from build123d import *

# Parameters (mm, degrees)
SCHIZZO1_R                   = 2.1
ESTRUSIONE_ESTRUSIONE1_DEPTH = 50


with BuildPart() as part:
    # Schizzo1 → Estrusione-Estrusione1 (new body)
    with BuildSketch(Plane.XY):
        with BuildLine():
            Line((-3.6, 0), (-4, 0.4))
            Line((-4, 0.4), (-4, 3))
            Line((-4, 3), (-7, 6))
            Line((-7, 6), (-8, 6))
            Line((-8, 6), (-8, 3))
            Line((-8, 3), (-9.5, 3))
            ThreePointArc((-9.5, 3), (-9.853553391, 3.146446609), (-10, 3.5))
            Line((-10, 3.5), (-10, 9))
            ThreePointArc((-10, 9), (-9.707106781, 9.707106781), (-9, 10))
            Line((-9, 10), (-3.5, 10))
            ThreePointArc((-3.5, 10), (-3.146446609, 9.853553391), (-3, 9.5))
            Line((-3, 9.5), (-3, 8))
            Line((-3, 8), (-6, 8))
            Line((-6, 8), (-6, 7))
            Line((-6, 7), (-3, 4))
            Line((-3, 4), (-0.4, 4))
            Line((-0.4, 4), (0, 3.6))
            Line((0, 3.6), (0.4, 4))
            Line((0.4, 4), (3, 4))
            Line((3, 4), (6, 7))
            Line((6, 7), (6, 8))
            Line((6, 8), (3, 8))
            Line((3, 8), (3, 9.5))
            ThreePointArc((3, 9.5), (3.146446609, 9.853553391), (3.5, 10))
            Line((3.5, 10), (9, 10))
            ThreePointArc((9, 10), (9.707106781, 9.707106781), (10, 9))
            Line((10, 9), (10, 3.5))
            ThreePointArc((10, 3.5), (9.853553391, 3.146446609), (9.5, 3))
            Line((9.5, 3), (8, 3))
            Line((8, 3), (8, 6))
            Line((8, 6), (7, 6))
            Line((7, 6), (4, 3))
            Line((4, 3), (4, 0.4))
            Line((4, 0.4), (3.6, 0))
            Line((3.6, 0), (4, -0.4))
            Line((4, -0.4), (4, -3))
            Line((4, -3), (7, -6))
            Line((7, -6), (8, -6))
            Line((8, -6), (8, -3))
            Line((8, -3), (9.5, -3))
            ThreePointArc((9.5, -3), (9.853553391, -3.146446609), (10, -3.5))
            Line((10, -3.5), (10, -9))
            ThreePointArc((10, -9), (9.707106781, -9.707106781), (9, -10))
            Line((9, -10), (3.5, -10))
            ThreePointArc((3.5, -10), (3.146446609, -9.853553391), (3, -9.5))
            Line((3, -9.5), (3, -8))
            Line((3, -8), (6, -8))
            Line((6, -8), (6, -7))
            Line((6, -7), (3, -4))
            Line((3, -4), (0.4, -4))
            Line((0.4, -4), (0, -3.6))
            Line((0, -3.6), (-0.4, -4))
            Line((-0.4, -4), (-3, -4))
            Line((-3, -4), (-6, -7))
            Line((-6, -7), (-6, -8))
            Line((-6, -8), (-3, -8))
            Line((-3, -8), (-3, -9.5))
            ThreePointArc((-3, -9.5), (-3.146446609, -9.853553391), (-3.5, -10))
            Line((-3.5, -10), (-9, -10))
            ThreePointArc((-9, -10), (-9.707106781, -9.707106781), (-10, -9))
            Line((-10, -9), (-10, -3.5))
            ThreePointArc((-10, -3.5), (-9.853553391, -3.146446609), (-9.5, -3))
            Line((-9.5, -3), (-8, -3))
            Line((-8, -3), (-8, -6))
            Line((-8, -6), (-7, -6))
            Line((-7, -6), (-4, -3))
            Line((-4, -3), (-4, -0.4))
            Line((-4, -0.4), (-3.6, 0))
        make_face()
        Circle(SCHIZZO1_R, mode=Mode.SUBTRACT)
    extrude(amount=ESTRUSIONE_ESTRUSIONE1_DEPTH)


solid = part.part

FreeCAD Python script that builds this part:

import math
import FreeCAD as App
import Part
import Sketcher

doc = App.newDocument("Part")
body = doc.addObject("PartDesign::Body", "Body")

sketch1 = doc.addObject("Sketcher::SketchObject", "Sketch")
body.addObject(sketch1)
sketch1.AttachmentSupport = (doc.XY_Plane, [""])
sketch1.MapMode = "FlatFace"
sketch1.addGeometry([
    Part.LineSegment(App.Vector(-4, 0.4, 0), App.Vector(-3.6, 0, 0)),
    Part.LineSegment(App.Vector(-3.6, 0, 0), App.Vector(-4, -0.4, 0)),
    Part.LineSegment(App.Vector(-4, -0.4, 0), App.Vector(-4, -3, 0)),
    Part.LineSegment(App.Vector(-4, -3, 0), App.Vector(-7, -6, 0)),
    Part.LineSegment(App.Vector(-7, -6, 0), App.Vector(-8, -6, 0)),
    Part.LineSegment(App.Vector(-8, -6, 0), App.Vector(-8, -3, 0)),
    Part.LineSegment(App.Vector(-8, -3, 0), App.Vector(-9.5, -3, 0)),
    Part.ArcOfCircle(Part.Circle(App.Vector(-9.5, -3.5, 0), App.Vector(0, 0, 1), 0.5), math.radians(90), math.radians(180)),
    Part.LineSegment(App.Vector(-10, -3.5, 0), App.Vector(-10, -9, 0)),
    Part.ArcOfCircle(Part.Circle(App.Vector(-9, -9, 0), App.Vector(0, 0, 1), 1), math.radians(-180), math.radians(-90)),
    Part.LineSegment(App.Vector(-9, -10, 0), App.Vector(-3.5, -10, 0)),
    Part.ArcOfCircle(Part.Circle(App.Vector(-3.5, -9.5, 0), App.Vector(0, 0, 1), 0.5), math.radians(-90), math.radians(0)),
    Part.LineSegment(App.Vector(-3, -9.5, 0), App.Vector(-3, -8, 0)),
    Part.LineSegment(App.Vector(-3, -8, 0), App.Vector(-6, -8, 0)),
    Part.LineSegment(App.Vector(-6, -8, 0), App.Vector(-6, -7, 0)),
    Part.LineSegment(App.Vector(-6, -7, 0), App.Vector(-3, -4, 0)),
    Part.LineSegment(App.Vector(-3, -4, 0), App.Vector(-0.4, -4, 0)),
    Part.LineSegment(App.Vector(-0.4, -4, 0), App.Vector(0, -3.6, 0)),
    Part.LineSegment(App.Vector(0, -3.6, 0), App.Vector(0.4, -4, 0)),
    Part.LineSegment(App.Vector(0.4, -4, 0), App.Vector(3, -4, 0)),
    Part.LineSegment(App.Vector(3, -4, 0), App.Vector(6, -7, 0)),
    Part.LineSegment(App.Vector(6, -7, 0), App.Vector(6, -8, 0)),
    Part.LineSegment(App.Vector(6, -8, 0), App.Vector(3, -8, 0)),
    Part.LineSegment(App.Vector(3, -8, 0), App.Vector(3, -9.5, 0)),
    Part.ArcOfCircle(Part.Circle(App.Vector(3.5, -9.5, 0), App.Vector(0, 0, 1), 0.5), math.radians(180), math.radians(270)),
    Part.LineSegment(App.Vector(3.5, -10, 0), App.Vector(9, -10, 0)),
    Part.ArcOfCircle(Part.Circle(App.Vector(9, -9, 0), App.Vector(0, 0, 1), 1), math.radians(-90), math.radians(0)),
    Part.LineSegment(App.Vector(10, -9, 0), App.Vector(10, -3.5, 0)),
    Part.ArcOfCircle(Part.Circle(App.Vector(9.5, -3.5, 0), App.Vector(0, 0, 1), 0.5), math.radians(0), math.radians(90)),
    Part.LineSegment(App.Vector(9.5, -3, 0), App.Vector(8, -3, 0)),
    Part.LineSegment(App.Vector(8, -3, 0), App.Vector(8, -6, 0)),
    Part.LineSegment(App.Vector(8, -6, 0), App.Vector(7, -6, 0)),
    Part.LineSegment(App.Vector(7, -6, 0), App.Vector(4, -3, 0)),
    Part.LineSegment(App.Vector(4, -3, 0), App.Vector(4, -0.4, 0)),
    Part.LineSegment(App.Vector(4, -0.4, 0), App.Vector(3.6, 0, 0)),
    Part.LineSegment(App.Vector(3.6, 0, 0), App.Vector(4, 0.4, 0)),
    Part.LineSegment(App.Vector(4, 0.4, 0), App.Vector(4, 3, 0)),
    Part.LineSegment(App.Vector(4, 3, 0), App.Vector(7, 6, 0)),
    Part.LineSegment(App.Vector(7, 6, 0), App.Vector(8, 6, 0)),
    Part.LineSegment(App.Vector(8, 6, 0), App.Vector(8, 3, 0)),
    Part.LineSegment(App.Vector(8, 3, 0), App.Vector(9.5, 3, 0)),
    Part.ArcOfCircle(Part.Circle(App.Vector(9.5, 3.5, 0), App.Vector(0, 0, 1), 0.5), math.radians(-90), math.radians(0)),
    Part.LineSegment(App.Vector(10, 3.5, 0), App.Vector(10, 9, 0)),
    Part.ArcOfCircle(Part.Circle(App.Vector(9, 9, 0), App.Vector(0, 0, 1), 1), math.radians(0), math.radians(90)),
    Part.LineSegment(App.Vector(9, 10, 0), App.Vector(3.5, 10, 0)),
    Part.ArcOfCircle(Part.Circle(App.Vector(3.5, 9.5, 0), App.Vector(0, 0, 1), 0.5), math.radians(90), math.radians(180)),
    Part.LineSegment(App.Vector(3, 9.5, 0), App.Vector(3, 8, 0)),
    Part.LineSegment(App.Vector(3, 8, 0), App.Vector(6, 8, 0)),
    Part.LineSegment(App.Vector(6, 8, 0), App.Vector(6, 7, 0)),
    Part.LineSegment(App.Vector(6, 7, 0), App.Vector(3, 4, 0)),
    Part.LineSegment(App.Vector(3, 4, 0), App.Vector(0.4, 4, 0)),
    Part.LineSegment(App.Vector(0.4, 4, 0), App.Vector(0, 3.6, 0)),
    Part.LineSegment(App.Vector(0, 3.6, 0), App.Vector(-0.4, 4, 0)),
    Part.LineSegment(App.Vector(-0.4, 4, 0), App.Vector(-3, 4, 0)),
    Part.LineSegment(App.Vector(-3, 4, 0), App.Vector(-6, 7, 0)),
    Part.LineSegment(App.Vector(-6, 7, 0), App.Vector(-6, 8, 0)),
    Part.LineSegment(App.Vector(-6, 8, 0), App.Vector(-3, 8, 0)),
    Part.LineSegment(App.Vector(-3, 8, 0), App.Vector(-3, 9.5, 0)),
    Part.ArcOfCircle(Part.Circle(App.Vector(-3.5, 9.5, 0), App.Vector(0, 0, 1), 0.5), math.radians(0), math.radians(90)),
    Part.LineSegment(App.Vector(-3.5, 10, 0), App.Vector(-9, 10, 0)),
    Part.ArcOfCircle(Part.Circle(App.Vector(-9, 9, 0), App.Vector(0, 0, 1), 1), math.radians(90), math.radians(180)),
    Part.LineSegment(App.Vector(-10, 9, 0), App.Vector(-10, 3.5, 0)),
    Part.ArcOfCircle(Part.Circle(App.Vector(-9.5, 3.5, 0), App.Vector(0, 0, 1), 0.5), math.radians(180), math.radians(270)),
    Part.LineSegment(App.Vector(-9.5, 3, 0), App.Vector(-8, 3, 0)),
    Part.LineSegment(App.Vector(-8, 3, 0), App.Vector(-8, 6, 0)),
    Part.LineSegment(App.Vector(-8, 6, 0), App.Vector(-7, 6, 0)),
    Part.LineSegment(App.Vector(-7, 6, 0), App.Vector(-4, 3, 0)),
    Part.LineSegment(App.Vector(-4, 3, 0), App.Vector(-4, 0.4, 0)),
    Part.Circle(App.Vector(0, 0, 0), App.Vector(0, 0, 1), 2.1),
], False)
sketch1.addConstraint([
    Sketcher.Constraint("Coincident", 0, 2, 1, 1),
    Sketcher.Constraint("Coincident", 1, 2, 2, 1),
    Sketcher.Constraint("Coincident", 2, 2, 3, 1),
    Sketcher.Constraint("Coincident", 3, 2, 4, 1),
    Sketcher.Constraint("Coincident", 4, 2, 5, 1),
    Sketcher.Constraint("Coincident", 5, 2, 6, 1),
    Sketcher.Constraint("Tangent", 6, 2, 7, 1),
    Sketcher.Constraint("Tangent", 7, 2, 8, 1),
    Sketcher.Constraint("Tangent", 8, 2, 9, 1),
    Sketcher.Constraint("Tangent", 9, 2, 10, 1),
    Sketcher.Constraint("Tangent", 10, 2, 11, 1),
    Sketcher.Constraint("Tangent", 11, 2, 12, 1),
    Sketcher.Constraint("Coincident", 12, 2, 13, 1),
    Sketcher.Constraint("Coincident", 13, 2, 14, 1),
    Sketcher.Constraint("Coincident", 14, 2, 15, 1),
    Sketcher.Constraint("Coincident", 15, 2, 16, 1),
    Sketcher.Constraint("Coincident", 16, 2, 17, 1),
    Sketcher.Constraint("Coincident", 17, 2, 18, 1),
    Sketcher.Constraint("Coincident", 18, 2, 19, 1),
    Sketcher.Constraint("Coincident", 19, 2, 20, 1),
    Sketcher.Constraint("Coincident", 20, 2, 21, 1),
    Sketcher.Constraint("Coincident", 21, 2, 22, 1),
    Sketcher.Constraint("Coincident", 22, 2, 23, 1),
    Sketcher.Constraint("Tangent", 23, 2, 24, 1),
    Sketcher.Constraint("Tangent", 24, 2, 25, 1),
    Sketcher.Constraint("Tangent", 25, 2, 26, 1),
    Sketcher.Constraint("Tangent", 26, 2, 27, 1),
    Sketcher.Constraint("Tangent", 27, 2, 28, 1),
    Sketcher.Constraint("Tangent", 28, 2, 29, 1),
    Sketcher.Constraint("Coincident", 29, 2, 30, 1),
    Sketcher.Constraint("Coincident", 30, 2, 31, 1),
    Sketcher.Constraint("Coincident", 31, 2, 32, 1),
    Sketcher.Constraint("Coincident", 32, 2, 33, 1),
    Sketcher.Constraint("Coincident", 33, 2, 34, 1),
    Sketcher.Constraint("Coincident", 34, 2, 35, 1),
    Sketcher.Constraint("Coincident", 35, 2, 36, 1),
    Sketcher.Constraint("Coincident", 36, 2, 37, 1),
    Sketcher.Constraint("Coincident", 37, 2, 38, 1),
    Sketcher.Constraint("Coincident", 38, 2, 39, 1),
    Sketcher.Constraint("Coincident", 39, 2, 40, 1),
    Sketcher.Constraint("Tangent", 40, 2, 41, 1),
    Sketcher.Constraint("Tangent", 41, 2, 42, 1),
    Sketcher.Constraint("Tangent", 42, 2, 43, 1),
    Sketcher.Constraint("Tangent", 43, 2, 44, 1),
    Sketcher.Constraint("Tangent", 44, 2, 45, 1),
    Sketcher.Constraint("Tangent", 45, 2, 46, 1),
    Sketcher.Constraint("Coincident", 46, 2, 47, 1),
    Sketcher.Constraint("Coincident", 47, 2, 48, 1),
    Sketcher.Constraint("Coincident", 48, 2, 49, 1),
    Sketcher.Constraint("Coincident", 49, 2, 50, 1),
    Sketcher.Constraint("Coincident", 50, 2, 51, 1),
    Sketcher.Constraint("Coincident", 51, 2, 52, 1),
    Sketcher.Constraint("Coincident", 52, 2, 53, 1),
    Sketcher.Constraint("Coincident", 53, 2, 54, 1),
    Sketcher.Constraint("Coincident", 54, 2, 55, 1),
    Sketcher.Constraint("Coincident", 55, 2, 56, 1),
    Sketcher.Constraint("Coincident", 56, 2, 57, 1),
    Sketcher.Constraint("Tangent", 57, 2, 58, 1),
    Sketcher.Constraint("Tangent", 58, 2, 59, 1),
    Sketcher.Constraint("Tangent", 59, 2, 60, 1),
    Sketcher.Constraint("Tangent", 60, 2, 61, 1),
    Sketcher.Constraint("Tangent", 61, 2, 62, 1),
    Sketcher.Constraint("Tangent", 62, 2, 63, 1),
    Sketcher.Constraint("Coincident", 63, 2, 64, 1),
    Sketcher.Constraint("Coincident", 64, 2, 65, 1),
    Sketcher.Constraint("Coincident", 65, 2, 66, 1),
    Sketcher.Constraint("Coincident", 66, 2, 67, 1),
    Sketcher.Constraint("Coincident", 67, 2, 0, 1),
    Sketcher.Constraint("Vertical", 2),
    Sketcher.Constraint("Horizontal", 4),
    Sketcher.Constraint("Vertical", 5),
    Sketcher.Constraint("Horizontal", 6),
    Sketcher.Constraint("Vertical", 8),
    Sketcher.Constraint("Horizontal", 10),
    Sketcher.Constraint("Vertical", 12),
    Sketcher.Constraint("Horizontal", 13),
    Sketcher.Constraint("Vertical", 14),
    Sketcher.Constraint("Horizontal", 16),
    Sketcher.Constraint("Horizontal", 19),
    Sketcher.Constraint("Vertical", 21),
    Sketcher.Constraint("Horizontal", 22),
    Sketcher.Constraint("Vertical", 23),
    Sketcher.Constraint("Horizontal", 25),
    Sketcher.Constraint("Vertical", 27),
    Sketcher.Constraint("Horizontal", 29),
    Sketcher.Constraint("Vertical", 30),
    Sketcher.Constraint("Horizontal", 31),
    Sketcher.Constraint("Vertical", 33),
    Sketcher.Constraint("Vertical", 36),
    Sketcher.Constraint("Horizontal", 38),
    Sketcher.Constraint("Vertical", 39),
    Sketcher.Constraint("Horizontal", 40),
    Sketcher.Constraint("Vertical", 42),
    Sketcher.Constraint("Horizontal", 44),
    Sketcher.Constraint("Vertical", 46),
    Sketcher.Constraint("Horizontal", 47),
    Sketcher.Constraint("Vertical", 48),
    Sketcher.Constraint("Horizontal", 50),
    Sketcher.Constraint("Horizontal", 53),
    Sketcher.Constraint("Vertical", 55),
    Sketcher.Constraint("Horizontal", 56),
    Sketcher.Constraint("Vertical", 57),
    Sketcher.Constraint("Horizontal", 59),
    Sketcher.Constraint("Vertical", 61),
    Sketcher.Constraint("Horizontal", 63),
    Sketcher.Constraint("Vertical", 64),
    Sketcher.Constraint("Horizontal", 65),
    Sketcher.Constraint("Vertical", 67),
    Sketcher.Constraint("Coincident", 68, 3, -1, 1),
    Sketcher.Constraint("Equal", 7, 11),
    Sketcher.Constraint("Equal", 11, 24),
    Sketcher.Constraint("Equal", 9, 26),
    Sketcher.Constraint("Equal", 24, 28),
    Sketcher.Constraint("Equal", 28, 41),
    Sketcher.Constraint("Equal", 26, 43),
    Sketcher.Constraint("Equal", 41, 45),
    Sketcher.Constraint("Equal", 45, 58),
    Sketcher.Constraint("Equal", 43, 60),
    Sketcher.Constraint("Equal", 58, 62),
    Sketcher.Constraint("Symmetric", 7, 3, 41, 3, -1, 1),
    Sketcher.Constraint("Symmetric", 11, 3, 45, 3, -1, 1),
    Sketcher.Constraint("Symmetric", 24, 3, 58, 3, -1, 1),
    Sketcher.Constraint("Symmetric", 28, 3, 62, 3, -1, 1),
    Sketcher.Constraint("Symmetric", 0, 2, 34, 2, -1, 1),
    Sketcher.Constraint("Symmetric", 1, 2, 35, 2, -1, 1),
    Sketcher.Constraint("Symmetric", 3, 2, 37, 2, -1, 1),
    Sketcher.Constraint("Symmetric", 13, 2, 47, 2, -1, 1),
    Sketcher.Constraint("Symmetric", 15, 2, 49, 2, -1, 1),
    Sketcher.Constraint("Symmetric", 17, 2, 51, 2, -1, 1),
    Sketcher.Constraint("Symmetric", 18, 2, 52, 2, -1, 1),
    Sketcher.Constraint("Symmetric", 20, 2, 54, 2, -1, 1),
    Sketcher.Constraint("Symmetric", 30, 2, 64, 2, -1, 1),
    Sketcher.Constraint("Symmetric", 32, 2, 66, 2, -1, 1),
    Sketcher.Constraint("Symmetric", 11, 3, 24, 3, -2),
    Sketcher.Constraint("Symmetric", 7, 3, 28, 3, -2),
    Sketcher.Constraint("Symmetric", 16, 2, 18, 2, -2),
    Sketcher.Constraint("Symmetric", 14, 2, 20, 2, -2),
    Sketcher.Constraint("Symmetric", 4, 2, 30, 2, -2),
    Sketcher.Constraint("Symmetric", 2, 2, 32, 2, -2),
    Sketcher.Constraint("PointOnObject", 0, 2, -1),
    Sketcher.Constraint("PointOnObject", 17, 2, -2),
    Sketcher.Constraint("Perpendicular", 0, 1),
    Sketcher.Constraint("Parallel", 1, 3),
    Sketcher.Constraint("Parallel", 3, 15),
    Sketcher.Constraint("Parallel", 15, 17),
    Sketcher.Constraint("Perpendicular", 17, 18),
    Sketcher.Constraint("Parallel", 18, 20),
    Sketcher.Constraint("Parallel", 20, 32),
    Sketcher.Constraint("Parallel", 32, 34),
    Sketcher.Constraint("Parallel", 35, 37),
    Sketcher.Constraint("Parallel", 37, 49),
    Sketcher.Constraint("Parallel", 49, 51),
    Sketcher.Constraint("Parallel", 52, 54),
    Sketcher.Constraint("Parallel", 54, 66),
    Sketcher.Constraint("Horizontal", 2, 2, 5, 2),
    Sketcher.Constraint("Horizontal", 13, 2, 21, 2),
    Sketcher.Constraint("Horizontal", 47, 2, 55, 2),
    Sketcher.Constraint("Vertical", 12, 2, 15, 2),
    Sketcher.Constraint("Vertical", 30, 2, 38, 2),
    Sketcher.Constraint("Equal", 53, 2),
    Sketcher.Constraint("Equal", 56, 5),
    Sketcher.Constraint("Equal", 59, 8),
    Sketcher.Constraint("Equal", 63, 12),
    Sketcher.Constraint("Equal", 65, 14),
    Sketcher.Constraint("Equal", 1, 17),
    Sketcher.Constraint("Radius", 9, 1.0),
    Sketcher.Constraint("Diameter", 68, 4.2),
    Sketcher.Constraint("Radius", 7, 0.5),
    Sketcher.Constraint("DistanceX", 4, 2, 4, 1, 1.0),
    Sketcher.Constraint("DistanceX", 13, 2, 13, 1, 3.0),
    Sketcher.Constraint("DistanceX", 6, 2, 6, 1, 1.5),
    Sketcher.Constraint("DistanceX", 10, 1, 10, 2, 5.5),
    Sketcher.Constraint("DistanceX", 16, 1, 16, 2, 2.6),
    Sketcher.Constraint("DistanceX", 9, 3, -1, 1, 9.0),
])
pad1 = doc.addObject("PartDesign::Pad", "Pad")
body.addObject(pad1)
pad1.Profile = sketch1
pad1.Length = 50

doc.recompute()
